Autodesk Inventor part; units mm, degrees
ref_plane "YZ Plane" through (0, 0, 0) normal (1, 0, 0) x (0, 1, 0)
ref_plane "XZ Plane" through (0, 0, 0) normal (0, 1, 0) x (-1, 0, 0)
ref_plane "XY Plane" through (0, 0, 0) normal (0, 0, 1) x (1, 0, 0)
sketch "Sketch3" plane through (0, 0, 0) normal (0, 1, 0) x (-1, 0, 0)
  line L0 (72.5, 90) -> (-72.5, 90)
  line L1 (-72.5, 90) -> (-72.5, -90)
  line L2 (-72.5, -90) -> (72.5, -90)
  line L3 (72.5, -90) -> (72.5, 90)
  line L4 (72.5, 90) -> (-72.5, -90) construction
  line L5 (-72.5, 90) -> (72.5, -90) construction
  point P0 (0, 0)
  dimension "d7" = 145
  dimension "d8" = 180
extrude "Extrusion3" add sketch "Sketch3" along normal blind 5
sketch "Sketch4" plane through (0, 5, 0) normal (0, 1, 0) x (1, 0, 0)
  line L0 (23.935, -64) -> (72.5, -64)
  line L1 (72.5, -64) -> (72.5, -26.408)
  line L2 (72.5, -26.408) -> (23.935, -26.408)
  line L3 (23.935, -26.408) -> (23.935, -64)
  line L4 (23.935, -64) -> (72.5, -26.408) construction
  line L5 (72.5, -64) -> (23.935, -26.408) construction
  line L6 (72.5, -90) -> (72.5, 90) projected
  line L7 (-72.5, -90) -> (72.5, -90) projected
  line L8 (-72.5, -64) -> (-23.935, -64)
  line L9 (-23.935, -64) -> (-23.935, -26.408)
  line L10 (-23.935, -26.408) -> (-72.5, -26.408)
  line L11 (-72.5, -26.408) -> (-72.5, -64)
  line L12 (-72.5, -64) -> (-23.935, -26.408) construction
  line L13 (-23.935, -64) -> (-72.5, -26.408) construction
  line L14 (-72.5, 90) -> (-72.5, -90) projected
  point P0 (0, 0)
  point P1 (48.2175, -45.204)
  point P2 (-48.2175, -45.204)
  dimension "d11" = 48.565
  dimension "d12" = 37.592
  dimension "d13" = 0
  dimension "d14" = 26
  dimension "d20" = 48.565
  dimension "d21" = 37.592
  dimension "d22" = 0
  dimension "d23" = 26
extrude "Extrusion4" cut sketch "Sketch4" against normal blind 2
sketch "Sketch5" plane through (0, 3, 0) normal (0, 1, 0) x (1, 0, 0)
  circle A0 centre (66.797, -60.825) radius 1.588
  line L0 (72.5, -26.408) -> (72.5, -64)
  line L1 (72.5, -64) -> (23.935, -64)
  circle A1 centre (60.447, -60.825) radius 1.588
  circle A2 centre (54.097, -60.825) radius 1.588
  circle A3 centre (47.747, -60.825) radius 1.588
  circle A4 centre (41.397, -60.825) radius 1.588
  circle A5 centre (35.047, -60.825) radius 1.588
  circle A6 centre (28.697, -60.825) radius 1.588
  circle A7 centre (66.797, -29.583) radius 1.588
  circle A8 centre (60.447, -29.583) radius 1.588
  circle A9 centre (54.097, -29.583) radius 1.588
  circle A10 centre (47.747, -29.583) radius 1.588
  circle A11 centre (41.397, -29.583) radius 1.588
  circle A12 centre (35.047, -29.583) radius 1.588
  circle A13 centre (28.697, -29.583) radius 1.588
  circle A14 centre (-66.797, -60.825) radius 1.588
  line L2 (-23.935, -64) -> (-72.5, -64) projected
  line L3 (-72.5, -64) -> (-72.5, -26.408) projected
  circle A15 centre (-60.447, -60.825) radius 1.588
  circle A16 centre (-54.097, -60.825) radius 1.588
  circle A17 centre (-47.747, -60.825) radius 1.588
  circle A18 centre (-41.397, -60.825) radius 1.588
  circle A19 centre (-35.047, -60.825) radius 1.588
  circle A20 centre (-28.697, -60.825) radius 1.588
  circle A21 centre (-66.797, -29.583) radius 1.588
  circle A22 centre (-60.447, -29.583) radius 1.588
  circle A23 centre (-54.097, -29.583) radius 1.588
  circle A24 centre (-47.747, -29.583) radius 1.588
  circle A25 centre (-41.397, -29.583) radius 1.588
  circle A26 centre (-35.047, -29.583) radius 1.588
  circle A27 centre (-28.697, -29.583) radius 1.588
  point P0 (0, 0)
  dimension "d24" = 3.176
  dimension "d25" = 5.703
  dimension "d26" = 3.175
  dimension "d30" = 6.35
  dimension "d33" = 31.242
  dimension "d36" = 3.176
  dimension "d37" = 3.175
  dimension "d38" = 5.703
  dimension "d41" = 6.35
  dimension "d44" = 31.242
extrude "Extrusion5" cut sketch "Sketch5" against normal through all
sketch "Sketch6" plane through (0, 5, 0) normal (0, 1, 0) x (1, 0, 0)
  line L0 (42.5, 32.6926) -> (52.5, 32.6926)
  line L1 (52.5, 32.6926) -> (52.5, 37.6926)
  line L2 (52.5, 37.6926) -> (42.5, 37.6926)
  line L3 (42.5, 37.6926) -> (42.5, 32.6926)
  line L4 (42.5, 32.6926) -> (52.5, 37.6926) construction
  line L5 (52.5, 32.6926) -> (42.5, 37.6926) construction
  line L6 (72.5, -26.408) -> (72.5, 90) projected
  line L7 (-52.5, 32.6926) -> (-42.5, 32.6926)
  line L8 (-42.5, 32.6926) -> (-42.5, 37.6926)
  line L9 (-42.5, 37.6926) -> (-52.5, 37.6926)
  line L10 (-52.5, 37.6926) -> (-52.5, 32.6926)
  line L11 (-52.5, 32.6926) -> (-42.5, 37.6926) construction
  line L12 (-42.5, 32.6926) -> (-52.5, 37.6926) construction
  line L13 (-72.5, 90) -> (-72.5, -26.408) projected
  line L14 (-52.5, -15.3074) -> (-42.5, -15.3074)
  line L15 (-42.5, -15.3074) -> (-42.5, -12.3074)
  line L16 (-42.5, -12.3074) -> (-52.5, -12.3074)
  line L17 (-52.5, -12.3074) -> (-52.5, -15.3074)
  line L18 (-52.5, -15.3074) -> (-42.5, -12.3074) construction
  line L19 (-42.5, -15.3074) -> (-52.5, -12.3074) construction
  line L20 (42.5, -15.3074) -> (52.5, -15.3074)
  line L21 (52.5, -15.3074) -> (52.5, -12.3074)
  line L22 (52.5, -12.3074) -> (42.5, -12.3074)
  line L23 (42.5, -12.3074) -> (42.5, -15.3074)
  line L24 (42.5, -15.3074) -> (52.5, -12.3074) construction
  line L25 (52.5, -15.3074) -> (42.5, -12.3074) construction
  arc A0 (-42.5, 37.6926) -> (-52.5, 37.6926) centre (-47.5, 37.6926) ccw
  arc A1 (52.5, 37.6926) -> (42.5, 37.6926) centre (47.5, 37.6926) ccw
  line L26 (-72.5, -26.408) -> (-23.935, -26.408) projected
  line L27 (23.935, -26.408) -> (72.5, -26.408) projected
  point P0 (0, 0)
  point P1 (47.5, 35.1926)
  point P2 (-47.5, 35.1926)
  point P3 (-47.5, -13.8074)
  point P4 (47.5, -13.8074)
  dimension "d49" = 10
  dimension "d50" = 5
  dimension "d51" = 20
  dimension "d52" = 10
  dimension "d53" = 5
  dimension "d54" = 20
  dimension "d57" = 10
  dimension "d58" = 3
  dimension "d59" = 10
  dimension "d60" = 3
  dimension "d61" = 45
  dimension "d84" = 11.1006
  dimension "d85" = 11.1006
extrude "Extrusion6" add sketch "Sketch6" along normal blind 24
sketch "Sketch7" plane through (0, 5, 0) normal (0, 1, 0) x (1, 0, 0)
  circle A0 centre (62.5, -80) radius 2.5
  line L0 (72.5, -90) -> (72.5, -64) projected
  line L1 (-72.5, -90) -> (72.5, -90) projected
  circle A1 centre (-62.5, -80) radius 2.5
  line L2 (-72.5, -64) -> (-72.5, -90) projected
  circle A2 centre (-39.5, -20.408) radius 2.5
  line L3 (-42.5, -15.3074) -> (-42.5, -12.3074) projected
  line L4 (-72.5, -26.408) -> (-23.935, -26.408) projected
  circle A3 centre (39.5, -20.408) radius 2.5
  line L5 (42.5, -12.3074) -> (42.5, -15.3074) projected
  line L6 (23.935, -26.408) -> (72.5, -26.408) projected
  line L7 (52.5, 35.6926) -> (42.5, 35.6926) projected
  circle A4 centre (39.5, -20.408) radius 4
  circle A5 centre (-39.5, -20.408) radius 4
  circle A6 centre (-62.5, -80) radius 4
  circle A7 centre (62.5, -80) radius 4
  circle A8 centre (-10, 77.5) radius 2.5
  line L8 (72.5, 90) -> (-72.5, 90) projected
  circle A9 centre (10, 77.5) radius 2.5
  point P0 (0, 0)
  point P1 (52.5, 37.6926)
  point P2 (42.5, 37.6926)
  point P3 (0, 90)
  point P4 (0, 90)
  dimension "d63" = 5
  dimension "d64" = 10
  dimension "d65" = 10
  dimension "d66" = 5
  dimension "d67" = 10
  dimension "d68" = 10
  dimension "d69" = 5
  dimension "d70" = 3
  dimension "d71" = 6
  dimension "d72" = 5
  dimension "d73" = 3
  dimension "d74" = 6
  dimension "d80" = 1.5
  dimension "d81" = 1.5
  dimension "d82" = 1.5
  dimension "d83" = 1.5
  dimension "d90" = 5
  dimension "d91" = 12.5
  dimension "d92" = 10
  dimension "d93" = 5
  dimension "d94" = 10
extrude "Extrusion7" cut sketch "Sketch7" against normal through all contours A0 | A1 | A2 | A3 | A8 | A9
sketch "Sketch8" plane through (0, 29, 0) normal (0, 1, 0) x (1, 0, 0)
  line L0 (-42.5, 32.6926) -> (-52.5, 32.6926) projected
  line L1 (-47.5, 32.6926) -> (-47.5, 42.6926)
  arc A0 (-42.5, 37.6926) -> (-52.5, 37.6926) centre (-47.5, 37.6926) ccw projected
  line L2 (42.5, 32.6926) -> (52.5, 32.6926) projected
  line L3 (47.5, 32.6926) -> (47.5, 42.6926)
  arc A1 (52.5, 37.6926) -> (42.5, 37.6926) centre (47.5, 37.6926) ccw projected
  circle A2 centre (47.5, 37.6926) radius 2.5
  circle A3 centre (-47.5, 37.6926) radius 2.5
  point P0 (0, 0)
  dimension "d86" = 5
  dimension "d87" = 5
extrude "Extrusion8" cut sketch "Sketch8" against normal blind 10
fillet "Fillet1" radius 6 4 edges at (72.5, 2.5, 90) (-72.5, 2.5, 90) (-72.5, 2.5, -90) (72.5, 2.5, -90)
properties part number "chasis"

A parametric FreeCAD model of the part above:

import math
import FreeCAD as App
import Part
import Sketcher
from FreeCAD import Vector


def edges_at(feature, points):
    """Names of the edges that pass closest to the given points."""
    edges = feature.Shape.Edges
    near = lambda p: min(range(len(edges)), key=lambda i: edges[i].distToShape(Part.Vertex(*p))[0])
    return sorted({f"Edge{near(p) + 1}" for p in points})


def add_polygon(sketch, points):
    """Adds a closed chain of lines whose ends are joined by coincident constraints."""
    first, n = sketch.GeometryCount, len(points)
    for a, b in zip(points, points[1:] + points[:1]):
        sketch.addGeometry(Part.LineSegment(App.Vector(*a, 0), App.Vector(*b, 0)), False)
    for i in range(n):
        sketch.addConstraint(Sketcher.Constraint("Coincident", first + i, 2, first + (i + 1) % n, 1))

doc = App.newDocument("Part")
body = doc.addObject("PartDesign::Body", "Body")

sketch1 = doc.addObject("Sketcher::SketchObject", "Sketch")
body.addObject(sketch1)
sketch1.AttachmentSupport = (doc.XZ_Plane, [""])
sketch1.MapMode = "FlatFace"
add_polygon(sketch1, [(-72, -90), (-72, 90), (72, 90), (72, -90)])
sketch1.addConstraint(Sketcher.Constraint("Vertical", 0))
sketch1.addConstraint(Sketcher.Constraint("Horizontal", 1))
sketch1.addConstraint(Sketcher.Constraint("Vertical", 2))
sketch1.addConstraint(Sketcher.Constraint("Horizontal", 3))
sketch1.addConstraint(Sketcher.Constraint("Symmetric", 0, 2, 2, 2, -1, 1))
sketch1.addConstraint(Sketcher.Constraint("DistanceX", 1, 1, 1, 2, 145.0))
sketch1.addConstraint(Sketcher.Constraint("DistanceY", 0, 1, 0, 2, 180.0))
pad1 = doc.addObject("PartDesign::Pad", "Pad")
body.addObject(pad1)
pad1.Profile = sketch1
pad1.Length = 5
pad1.Reversed = True

sketch2 = doc.addObject("Sketcher::SketchObject", "Sketch001")
body.addObject(sketch2)
sketch2.AttachmentSupport = (doc.XZ_Plane, [""])
sketch2.MapMode = "FlatFace"
sketch2.AttachmentOffset = App.Placement(Vector(0, 0, -5), App.Rotation())
add_polygon(sketch2, [(24, 26), (24, 64), (72, 64), (72, 26)])
add_polygon(sketch2, [(-72, 26), (-72, 64), (-24, 64), (-24, 26)])
sketch2.addConstraint(Sketcher.Constraint("Vertical", 0))
sketch2.addConstraint(Sketcher.Constraint("Horizontal", 1))
sketch2.addConstraint(Sketcher.Constraint("Vertical", 2))
sketch2.addConstraint(Sketcher.Constraint("Horizontal", 3))
sketch2.addConstraint(Sketcher.Constraint("Vertical", 4))
sketch2.addConstraint(Sketcher.Constraint("Horizontal", 5))
sketch2.addConstraint(Sketcher.Constraint("Vertical", 6))
sketch2.addConstraint(Sketcher.Constraint("Horizontal", 7))
sketch2.addConstraint(Sketcher.Constraint("Symmetric", 1, 2, 4, 2, -2))
sketch2.addConstraint(Sketcher.Constraint("Symmetric", 3, 2, 6, 2, -2))
sketch2.addConstraint(Sketcher.Constraint("DistanceX", 1, 1, 1, 2, 48.565))
sketch2.addConstraint(Sketcher.Constraint("DistanceY", 0, 1, 0, 2, 37.592))
sketch2.addConstraint(Sketcher.Constraint("DistanceY", -1, 1, 0, 2, 64.0))
sketch2.addConstraint(Sketcher.Constraint("DistanceX", 4, 2, 1, 2, 145.0))
pocket1 = doc.addObject("PartDesign::Pocket", "Pocket")
body.addObject(pocket1)
pocket1.Profile = sketch2
pocket1.Length = 2
pocket1.Reversed = True

sketch3 = doc.addObject("Sketcher::SketchObject", "Sketch002")
body.addObject(sketch3)
sketch3.AttachmentSupport = (doc.XZ_Plane, [""])
sketch3.MapMode = "FlatFace"
sketch3.AttachmentOffset = App.Placement(Vector(0, 0, -3), App.Rotation())
sketch3.addGeometry(Part.Circle(Vector(66.8, 60.8, 0), Vector(0, 0, 1), 1.6), False)
sketch3.addGeometry(Part.Circle(Vector(60.4, 60.8, 0), Vector(0, 0, 1), 1.6), False)
sketch3.addGeometry(Part.Circle(Vector(54.1, 60.8, 0), Vector(0, 0, 1), 1.6), False)
sketch3.addGeometry(Part.Circle(Vector(47.7, 60.8, 0), Vector(0, 0, 1), 1.6), False)
sketch3.addGeometry(Part.Circle(Vector(41.4, 60.8, 0), Vector(0, 0, 1), 1.6), False)
sketch3.addGeometry(Part.Circle(Vector(35, 60.8, 0), Vector(0, 0, 1), 1.6), False)
sketch3.addGeometry(Part.Circle(Vector(28.7, 60.8, 0), Vector(0, 0, 1), 1.6), False)
sketch3.addGeometry(Part.Circle(Vector(66.8, 29.6, 0), Vector(0, 0, 1), 1.6), False)
sketch3.addGeometry(Part.Circle(Vector(60.4, 29.6, 0), Vector(0, 0, 1), 1.6), False)
sketch3.addGeometry(Part.Circle(Vector(54.1, 29.6, 0), Vector(0, 0, 1), 1.6), False)
sketch3.addGeometry(Part.Circle(Vector(47.7, 29.6, 0), Vector(0, 0, 1), 1.6), False)
sketch3.addGeometry(Part.Circle(Vector(41.4, 29.6, 0), Vector(0, 0, 1), 1.6), False)
sketch3.addGeometry(Part.Circle(Vector(35, 29.6, 0), Vector(0, 0, 1), 1.6), False)
sketch3.addGeometry(Part.Circle(Vector(28.7, 29.6, 0), Vector(0, 0, 1), 1.6), False)
sketch3.addGeometry(Part.Circle(Vector(-66.8, 60.8, 0), Vector(0, 0, 1), 1.6), False)
sketch3.addGeometry(Part.Circle(Vector(-60.4, 60.8, 0), Vector(0, 0, 1), 1.6), False)
sketch3.addGeometry(Part.Circle(Vector(-54.1, 60.8, 0), Vector(0, 0, 1), 1.6), False)
sketch3.addGeometry(Part.Circle(Vector(-47.7, 60.8, 0), Vector(0, 0, 1), 1.6), False)
sketch3.addGeometry(Part.Circle(Vector(-41.4, 60.8, 0), Vector(0, 0, 1), 1.6), False)
sketch3.addGeometry(Part.Circle(Vector(-35, 60.8, 0), Vector(0, 0, 1), 1.6), False)
sketch3.addGeometry(Part.Circle(Vector(-28.7, 60.8, 0), Vector(0, 0, 1), 1.6), False)
sketch3.addGeometry(Part.Circle(Vector(-66.8, 29.6, 0), Vector(0, 0, 1), 1.6), False)
sketch3.addGeometry(Part.Circle(Vector(-60.4, 29.6, 0), Vector(0, 0, 1), 1.6), False)
sketch3.addGeometry(Part.Circle(Vector(-54.1, 29.6, 0), Vector(0, 0, 1), 1.6), False)
sketch3.addGeometry(Part.Circle(Vector(-47.7, 29.6, 0), Vector(0, 0, 1), 1.6), False)
sketch3.addGeometry(Part.Circle(Vector(-41.4, 29.6, 0), Vector(0, 0, 1), 1.6), False)
sketch3.addGeometry(Part.Circle(Vector(-35, 29.6, 0), Vector(0, 0, 1), 1.6), False)
sketch3.addGeometry(Part.Circle(Vector(-28.7, 29.6, 0), Vector(0, 0, 1), 1.6), False)
sketch3.addConstraint(Sketcher.Constraint("Equal", 0, 1))
sketch3.addConstraint(Sketcher.Constraint("Equal", 1, 2))
sketch3.addConstraint(Sketcher.Constraint("Equal", 2, 3))
sketch3.addConstraint(Sketcher.Constraint("Equal", 3, 4))
sketch3.addConstraint(Sketcher.Constraint("Equal", 4, 5))
sketch3.addConstraint(Sketcher.Constraint("Equal", 5, 6))
sketch3.addConstraint(Sketcher.Constraint("Equal", 6, 7))
sketch3.addConstraint(Sketcher.Constraint("Equal", 7, 8))
sketch3.addConstraint(Sketcher.Constraint("Equal", 8, 9))
sketch3.addConstraint(Sketcher.Constraint("Equal", 9, 10))
sketch3.addConstraint(Sketcher.Constraint("Equal", 10, 11))
sketch3.addConstraint(Sketcher.Constraint("Equal", 11, 12))
sketch3.addConstraint(Sketcher.Constraint("Equal", 12, 13))
sketch3.addConstraint(Sketcher.Constraint("Equal", 13, 14))
sketch3.addConstraint(Sketcher.Constraint("Equal", 14, 15))
sketch3.addConstraint(Sketcher.Constraint("Equal", 15, 16))
sketch3.addConstraint(Sketcher.Constraint("Equal", 16, 17))
sketch3.addConstraint(Sketcher.Constraint("Equal", 17, 18))
sketch3.addConstraint(Sketcher.Constraint("Equal", 18, 19))
sketch3.addConstraint(Sketcher.Constraint("Equal", 19, 20))
sketch3.addConstraint(Sketcher.Constraint("Equal", 20, 21))
sketch3.addConstraint(Sketcher.Constraint("Equal", 21, 22))
sketch3.addConstraint(Sketcher.Constraint("Equal", 22, 23))
sketch3.addConstraint(Sketcher.Constraint("Equal", 23, 24))
sketch3.addConstraint(Sketcher.Constraint("Equal", 24, 25))
sketch3.addConstraint(Sketcher.Constraint("Equal", 25, 26))
sketch3.addConstraint(Sketcher.Constraint("Equal", 26, 27))
sketch3.addConstraint(Sketcher.Constraint("Symmetric", 0, 3, 14, 3, -2))
sketch3.addConstraint(Sketcher.Constraint("Symmetric", 1, 3, 15, 3, -2))
sketch3.addConstraint(Sketcher.Constraint("Symmetric", 2, 3, 16, 3, -2))
sketch3.addConstraint(Sketcher.Constraint("Symmetric", 3, 3, 17, 3, -2))
sketch3.addConstraint(Sketcher.Constraint("Symmetric", 4, 3, 18, 3, -2))
sketch3.addConstraint(Sketcher.Constraint("Symmetric", 5, 3, 19, 3, -2))
sketch3.addConstraint(Sketcher.Constraint("Symmetric", 6, 3, 20, 3, -2))
sketch3.addConstraint(Sketcher.Constraint("Symmetric", 7, 3, 21, 3, -2))
sketch3.addConstraint(Sketcher.Constraint("Symmetric", 8, 3, 22, 3, -2))
sketch3.addConstraint(Sketcher.Constraint("Symmetric", 9, 3, 23, 3, -2))
sketch3.addConstraint(Sketcher.Constraint("Symmetric", 10, 3, 24, 3, -2))
sketch3.addConstraint(Sketcher.Constraint("Symmetric", 11, 3, 25, 3, -2))
sketch3.addConstraint(Sketcher.Constraint("Symmetric", 12, 3, 26, 3, -2))
sketch3.addConstraint(Sketcher.Constraint("Symmetric", 13, 3, 27, 3, -2))
sketch3.addConstraint(Sketcher.Constraint("Horizontal", 0, 3, 1, 3))
sketch3.addConstraint(Sketcher.Constraint("Horizontal", 1, 3, 2, 3))
sketch3.addConstraint(Sketcher.Constraint("Horizontal", 2, 3, 3, 3))
sketch3.addConstraint(Sketcher.Constraint("Horizontal", 3, 3, 4, 3))
sketch3.addConstraint(Sketcher.Constraint("Horizontal", 4, 3, 5, 3))
sketch3.addConstraint(Sketcher.Constraint("Horizontal", 5, 3, 6, 3))
sketch3.addConstraint(Sketcher.Constraint("Horizontal", 7, 3, 8, 3))
sketch3.addConstraint(Sketcher.Constraint("Horizontal", 8, 3, 9, 3))
sketch3.addConstraint(Sketcher.Constraint("Horizontal", 9, 3, 10, 3))
sketch3.addConstraint(Sketcher.Constraint("Horizontal", 10, 3, 11, 3))
sketch3.addConstraint(Sketcher.Constraint("Horizontal", 11, 3, 12, 3))
sketch3.addConstraint(Sketcher.Constraint("Horizontal", 12, 3, 13, 3))
sketch3.addConstraint(Sketcher.Constraint("Vertical", 0, 3, 7, 3))
sketch3.addConstraint(Sketcher.Constraint("Vertical", 1, 3, 8, 3))
sketch3.addConstraint(Sketcher.Constraint("Vertical", 2, 3, 9, 3))
sketch3.addConstraint(Sketcher.Constraint("Vertical", 3, 3, 10, 3))
sketch3.addConstraint(Sketcher.Constraint("Vertical", 4, 3, 11, 3))
sketch3.addConstraint(Sketcher.Constraint("Vertical", 5, 3, 12, 3))
sketch3.addConstraint(Sketcher.Constraint("Vertical", 6, 3, 13, 3))
sketch3.addConstraint(Sketcher.Constraint("Diameter", 0, 3.176))
sketch3.addConstraint(Sketcher.Constraint("DistanceX", 1, 3, 0, 3, 6.35))
sketch3.addConstraint(Sketcher.Constraint("DistanceX", 2, 3, 1, 3, 6.35))
sketch3.addConstraint(Sketcher.Constraint("DistanceX", 3, 3, 2, 3, 6.35))
sketch3.addConstraint(Sketcher.Constraint("DistanceX", 4, 3, 3, 3, 6.35))
sketch3.addConstraint(Sketcher.Constraint("DistanceX", 5, 3, 4, 3, 6.35))
sketch3.addConstraint(Sketcher.Constraint("DistanceX", 6, 3, 5, 3, 6.35))
sketch3.addConstraint(Sketcher.Constraint("DistanceY", 7, 3, 0, 3, 31.242))
sketch3.addConstraint(Sketcher.Constraint("DistanceX", -1, 1, 0, 3, 66.797))
sketch3.addConstraint(Sketcher.Constraint("DistanceY", -1, 1, 0, 3, 60.825))
pocket2 = doc.addObject("PartDesign::Pocket", "Pocket001")
body.addObject(pocket2)
pocket2.Profile = sketch3
pocket2.Type = "ThroughAll"
pocket2.Reversed = True

sketch4 = doc.addObject("Sketcher::SketchObject", "Sketch003")
body.addObject(sketch4)
sketch4.AttachmentSupport = (doc.XZ_Plane, [""])
sketch4.MapMode = "FlatFace"
sketch4.AttachmentOffset = App.Placement(Vector(0, 0, -5), App.Rotation())
sketch4.addGeometry(Part.LineSegment(Vector(42.5, -37.7, 0), Vector(42.5, -32.7, 0)), False)
sketch4.addGeometry(Part.LineSegment(Vector(42.5, -32.7, 0), Vector(52.5, -32.7, 0)), False)
sketch4.addGeometry(Part.LineSegment(Vector(52.5, -32.7, 0), Vector(52.5, -37.7, 0)), False)
sketch4.addGeometry(Part.ArcOfCircle(Part.Circle(Vector(47.5, -37.7, 0), Vector(0, 0, 1), 5), math.radians(180), math.radians(360)), False)
sketch4.addGeometry(Part.LineSegment(Vector(-52.5, -37.7, 0), Vector(-52.5, -32.7, 0)), False)
sketch4.addGeometry(Part.LineSegment(Vector(-52.5, -32.7, 0), Vector(-42.5, -32.7, 0)), False)
sketch4.addGeometry(Part.LineSegment(Vector(-42.5, -32.7, 0), Vector(-42.5, -37.7, 0)), False)
sketch4.addGeometry(Part.ArcOfCircle(Part.Circle(Vector(-47.5, -37.7, 0), Vector(0, 0, 1), 5), math.radians(180), math.radians(360)), False)
add_polygon(sketch4, [(-52.5, 12.3), (-52.5, 15.3), (-42.5, 15.3), (-42.5, 12.3)])
add_polygon(sketch4, [(42.5, 12.3), (42.5, 15.3), (52.5, 15.3), (52.5, 12.3)])
sketch4.addConstraint(Sketcher.Constraint("Coincident", 0, 2, 1, 1))
sketch4.addConstraint(Sketcher.Constraint("Coincident", 1, 2, 2, 1))
sketch4.addConstraint(Sketcher.Constraint("Tangent", 2, 2, 3, 2))
sketch4.addConstraint(Sketcher.Constraint("Tangent", 3, 1, 0, 1))
sketch4.addConstraint(Sketcher.Constraint("Coincident", 4, 2, 5, 1))
sketch4.addConstraint(Sketcher.Constraint("Coincident", 5, 2, 6, 1))
sketch4.addConstraint(Sketcher.Constraint("Tangent", 6, 2, 7, 2))
sketch4.addConstraint(Sketcher.Constraint("Tangent", 7, 1, 4, 1))
sketch4.addConstraint(Sketcher.Constraint("Vertical", 0))
sketch4.addConstraint(Sketcher.Constraint("Horizontal", 1))
sketch4.addConstraint(Sketcher.Constraint("Vertical", 2))
sketch4.addConstraint(Sketcher.Constraint("Vertical", 4))
sketch4.addConstraint(Sketcher.Constraint("Horizontal", 5))
sketch4.addConstraint(Sketcher.Constraint("Vertical", 6))
sketch4.addConstraint(Sketcher.Constraint("Vertical", 8))
sketch4.addConstraint(Sketcher.Constraint("Horizontal", 9))
sketch4.addConstraint(Sketcher.Constraint("Vertical", 10))
sketch4.addConstraint(Sketcher.Constraint("Horizontal", 11))
sketch4.addConstraint(Sketcher.Constraint("Vertical", 12))
sketch4.addConstraint(Sketcher.Constraint("Horizontal", 13))
sketch4.addConstraint(Sketcher.Constraint("Vertical", 14))
sketch4.addConstraint(Sketcher.Constraint("Horizontal", 15))
sketch4.addConstraint(Sketcher.Constraint("Equal", 3, 7))
sketch4.addConstraint(Sketcher.Constraint("Symmetric", 3, 3, 7, 3, -2))
sketch4.addConstraint(Sketcher.Constraint("Symmetric", 9, 2, 12, 2, -2))
sketch4.addConstraint(Sketcher.Constraint("Symmetric", 11, 2, 14, 2, -2))
sketch4.addConstraint(Sketcher.Constraint("Horizontal", 1, 2, 4, 2))
sketch4.addConstraint(Sketcher.Constraint("Vertical", 7, 1, 8, 2))
sketch4.addConstraint(Sketcher.Constraint("Vertical", 6, 2, 9, 2))
sketch4.addConstraint(Sketcher.Constraint("Radius", 3, 5.0))
sketch4.addConstraint(Sketcher.Constraint("DistanceY", 0, 1, 0, 2, 5.0))
sketch4.addConstraint(Sketcher.Constraint("DistanceY", 8, 1, 8, 2, 3.0))
sketch4.addConstraint(Sketcher.Constraint("DistanceY", 5, 2, 10, 2, 45.0))
sketch4.addConstraint(Sketcher.Constraint("DistanceX", 7, 3, 3, 3, 95.0))
sketch4.addConstraint(Sketcher.Constraint("DistanceY", 3, 3, -1, 1, 37.6926))
pad2 = doc.addObject("PartDesign::Pad", "Pad001")
body.addObject(pad2)
pad2.Profile = sketch4
pad2.Length = 24
pad2.Reversed = True

sketch5 = doc.addObject("Sketcher::SketchObject", "Sketch004")
body.addObject(sketch5)
sketch5.AttachmentSupport = (doc.XZ_Plane, [""])
sketch5.MapMode = "FlatFace"
sketch5.AttachmentOffset = App.Placement(Vector(0, 0, -5), App.Rotation())
sketch5.addGeometry(Part.Circle(Vector(62.5, 80, 0), Vector(0, 0, 1), 2.5), False)
sketch5.addGeometry(Part.Circle(Vector(-62.5, 80, 0), Vector(0, 0, 1), 2.5), False)
sketch5.addGeometry(Part.Circle(Vector(-39.5, 20.4, 0), Vector(0, 0, 1), 2.5), False)
sketch5.addGeometry(Part.Circle(Vector(39.5, 20.4, 0), Vector(0, 0, 1), 2.5), False)
sketch5.addGeometry(Part.Circle(Vector(-10, -77.5, 0), Vector(0, 0, 1), 2.5), False)
sketch5.addGeometry(Part.Circle(Vector(10, -77.5, 0), Vector(0, 0, 1), 2.5), False)
sketch5.addConstraint(Sketcher.Constraint("Equal", 0, 1))
sketch5.addConstraint(Sketcher.Constraint("Equal", 1, 2))
sketch5.addConstraint(Sketcher.Constraint("Equal", 2, 3))
sketch5.addConstraint(Sketcher.Constraint("Equal", 3, 4))
sketch5.addConstraint(Sketcher.Constraint("Equal", 4, 5))
sketch5.addConstraint(Sketcher.Constraint("Symmetric", 0, 3, 1, 3, -2))
sketch5.addConstraint(Sketcher.Constraint("Symmetric", 2, 3, 3, 3, -2))
sketch5.addConstraint(Sketcher.Constraint("Symmetric", 4, 3, 5, 3, -2))
sketch5.addConstraint(Sketcher.Constraint("Diameter", 0, 5.0))
sketch5.addConstraint(Sketcher.Constraint("DistanceX", 4, 3, -1, 1, 10.0))
sketch5.addConstraint(Sketcher.Constraint("DistanceY", -1, 1, 0, 3, 80.0))
sketch5.addConstraint(Sketcher.Constraint("DistanceX", 1, 3, 0, 3, 125.0))
sketch5.addConstraint(Sketcher.Constraint("DistanceX", 1, 3, 2, 3, 23.0))
sketch5.addConstraint(Sketcher.Constraint("DistanceY", 4, 3, -1, 1, 77.5))
sketch5.addConstraint(Sketcher.Constraint("DistanceY", -1, 1, 2, 3, 20.408))
pocket3 = doc.addObject("PartDesign::Pocket", "Pocket002")
body.addObject(pocket3)
pocket3.Profile = sketch5
pocket3.Type = "ThroughAll"
pocket3.Reversed = True

sketch6 = doc.addObject("Sketcher::SketchObject", "Sketch005")
body.addObject(sketch6)
sketch6.AttachmentSupport = (doc.XZ_Plane, [""])
sketch6.MapMode = "FlatFace"
sketch6.AttachmentOffset = App.Placement(Vector(0, 0, -29), App.Rotation())
sketch6.addGeometry(Part.Circle(Vector(-47.5, -37.7, 0), Vector(0, 0, 1), 2.5), False)
sketch6.addGeometry(Part.Circle(Vector(47.5, -37.7, 0), Vector(0, 0, 1), 2.5), False)
sketch6.addConstraint(Sketcher.Constraint("Equal", 0, 1))
sketch6.addConstraint(Sketcher.Constraint("Symmetric", 0, 3, 1, 3, -2))
sketch6.addConstraint(Sketcher.Constraint("Diameter", 0, 5.0))
sketch6.addConstraint(Sketcher.Constraint("DistanceX", 0, 3, 1, 3, 95.0))
sketch6.addConstraint(Sketcher.Constraint("DistanceY", 0, 3, -1, 1, 37.6926))
pocket4 = doc.addObject("PartDesign::Pocket", "Pocket003")
body.addObject(pocket4)
pocket4.Profile = sketch6
pocket4.Length = 10
pocket4.Reversed = True
doc.recompute()

fillet = doc.addObject("PartDesign::Fillet", "Fillet")
body.addObject(fillet)
fillet.Base = (pocket4, edges_at(pocket4, [
    (72.5, 2.5, 90),
    (-72.5, 2.5, 90),
    (-72.5, 2.5, -90),
    (72.5, 2.5, -90),
]))
fillet.Radius = 6

doc.recompute()
